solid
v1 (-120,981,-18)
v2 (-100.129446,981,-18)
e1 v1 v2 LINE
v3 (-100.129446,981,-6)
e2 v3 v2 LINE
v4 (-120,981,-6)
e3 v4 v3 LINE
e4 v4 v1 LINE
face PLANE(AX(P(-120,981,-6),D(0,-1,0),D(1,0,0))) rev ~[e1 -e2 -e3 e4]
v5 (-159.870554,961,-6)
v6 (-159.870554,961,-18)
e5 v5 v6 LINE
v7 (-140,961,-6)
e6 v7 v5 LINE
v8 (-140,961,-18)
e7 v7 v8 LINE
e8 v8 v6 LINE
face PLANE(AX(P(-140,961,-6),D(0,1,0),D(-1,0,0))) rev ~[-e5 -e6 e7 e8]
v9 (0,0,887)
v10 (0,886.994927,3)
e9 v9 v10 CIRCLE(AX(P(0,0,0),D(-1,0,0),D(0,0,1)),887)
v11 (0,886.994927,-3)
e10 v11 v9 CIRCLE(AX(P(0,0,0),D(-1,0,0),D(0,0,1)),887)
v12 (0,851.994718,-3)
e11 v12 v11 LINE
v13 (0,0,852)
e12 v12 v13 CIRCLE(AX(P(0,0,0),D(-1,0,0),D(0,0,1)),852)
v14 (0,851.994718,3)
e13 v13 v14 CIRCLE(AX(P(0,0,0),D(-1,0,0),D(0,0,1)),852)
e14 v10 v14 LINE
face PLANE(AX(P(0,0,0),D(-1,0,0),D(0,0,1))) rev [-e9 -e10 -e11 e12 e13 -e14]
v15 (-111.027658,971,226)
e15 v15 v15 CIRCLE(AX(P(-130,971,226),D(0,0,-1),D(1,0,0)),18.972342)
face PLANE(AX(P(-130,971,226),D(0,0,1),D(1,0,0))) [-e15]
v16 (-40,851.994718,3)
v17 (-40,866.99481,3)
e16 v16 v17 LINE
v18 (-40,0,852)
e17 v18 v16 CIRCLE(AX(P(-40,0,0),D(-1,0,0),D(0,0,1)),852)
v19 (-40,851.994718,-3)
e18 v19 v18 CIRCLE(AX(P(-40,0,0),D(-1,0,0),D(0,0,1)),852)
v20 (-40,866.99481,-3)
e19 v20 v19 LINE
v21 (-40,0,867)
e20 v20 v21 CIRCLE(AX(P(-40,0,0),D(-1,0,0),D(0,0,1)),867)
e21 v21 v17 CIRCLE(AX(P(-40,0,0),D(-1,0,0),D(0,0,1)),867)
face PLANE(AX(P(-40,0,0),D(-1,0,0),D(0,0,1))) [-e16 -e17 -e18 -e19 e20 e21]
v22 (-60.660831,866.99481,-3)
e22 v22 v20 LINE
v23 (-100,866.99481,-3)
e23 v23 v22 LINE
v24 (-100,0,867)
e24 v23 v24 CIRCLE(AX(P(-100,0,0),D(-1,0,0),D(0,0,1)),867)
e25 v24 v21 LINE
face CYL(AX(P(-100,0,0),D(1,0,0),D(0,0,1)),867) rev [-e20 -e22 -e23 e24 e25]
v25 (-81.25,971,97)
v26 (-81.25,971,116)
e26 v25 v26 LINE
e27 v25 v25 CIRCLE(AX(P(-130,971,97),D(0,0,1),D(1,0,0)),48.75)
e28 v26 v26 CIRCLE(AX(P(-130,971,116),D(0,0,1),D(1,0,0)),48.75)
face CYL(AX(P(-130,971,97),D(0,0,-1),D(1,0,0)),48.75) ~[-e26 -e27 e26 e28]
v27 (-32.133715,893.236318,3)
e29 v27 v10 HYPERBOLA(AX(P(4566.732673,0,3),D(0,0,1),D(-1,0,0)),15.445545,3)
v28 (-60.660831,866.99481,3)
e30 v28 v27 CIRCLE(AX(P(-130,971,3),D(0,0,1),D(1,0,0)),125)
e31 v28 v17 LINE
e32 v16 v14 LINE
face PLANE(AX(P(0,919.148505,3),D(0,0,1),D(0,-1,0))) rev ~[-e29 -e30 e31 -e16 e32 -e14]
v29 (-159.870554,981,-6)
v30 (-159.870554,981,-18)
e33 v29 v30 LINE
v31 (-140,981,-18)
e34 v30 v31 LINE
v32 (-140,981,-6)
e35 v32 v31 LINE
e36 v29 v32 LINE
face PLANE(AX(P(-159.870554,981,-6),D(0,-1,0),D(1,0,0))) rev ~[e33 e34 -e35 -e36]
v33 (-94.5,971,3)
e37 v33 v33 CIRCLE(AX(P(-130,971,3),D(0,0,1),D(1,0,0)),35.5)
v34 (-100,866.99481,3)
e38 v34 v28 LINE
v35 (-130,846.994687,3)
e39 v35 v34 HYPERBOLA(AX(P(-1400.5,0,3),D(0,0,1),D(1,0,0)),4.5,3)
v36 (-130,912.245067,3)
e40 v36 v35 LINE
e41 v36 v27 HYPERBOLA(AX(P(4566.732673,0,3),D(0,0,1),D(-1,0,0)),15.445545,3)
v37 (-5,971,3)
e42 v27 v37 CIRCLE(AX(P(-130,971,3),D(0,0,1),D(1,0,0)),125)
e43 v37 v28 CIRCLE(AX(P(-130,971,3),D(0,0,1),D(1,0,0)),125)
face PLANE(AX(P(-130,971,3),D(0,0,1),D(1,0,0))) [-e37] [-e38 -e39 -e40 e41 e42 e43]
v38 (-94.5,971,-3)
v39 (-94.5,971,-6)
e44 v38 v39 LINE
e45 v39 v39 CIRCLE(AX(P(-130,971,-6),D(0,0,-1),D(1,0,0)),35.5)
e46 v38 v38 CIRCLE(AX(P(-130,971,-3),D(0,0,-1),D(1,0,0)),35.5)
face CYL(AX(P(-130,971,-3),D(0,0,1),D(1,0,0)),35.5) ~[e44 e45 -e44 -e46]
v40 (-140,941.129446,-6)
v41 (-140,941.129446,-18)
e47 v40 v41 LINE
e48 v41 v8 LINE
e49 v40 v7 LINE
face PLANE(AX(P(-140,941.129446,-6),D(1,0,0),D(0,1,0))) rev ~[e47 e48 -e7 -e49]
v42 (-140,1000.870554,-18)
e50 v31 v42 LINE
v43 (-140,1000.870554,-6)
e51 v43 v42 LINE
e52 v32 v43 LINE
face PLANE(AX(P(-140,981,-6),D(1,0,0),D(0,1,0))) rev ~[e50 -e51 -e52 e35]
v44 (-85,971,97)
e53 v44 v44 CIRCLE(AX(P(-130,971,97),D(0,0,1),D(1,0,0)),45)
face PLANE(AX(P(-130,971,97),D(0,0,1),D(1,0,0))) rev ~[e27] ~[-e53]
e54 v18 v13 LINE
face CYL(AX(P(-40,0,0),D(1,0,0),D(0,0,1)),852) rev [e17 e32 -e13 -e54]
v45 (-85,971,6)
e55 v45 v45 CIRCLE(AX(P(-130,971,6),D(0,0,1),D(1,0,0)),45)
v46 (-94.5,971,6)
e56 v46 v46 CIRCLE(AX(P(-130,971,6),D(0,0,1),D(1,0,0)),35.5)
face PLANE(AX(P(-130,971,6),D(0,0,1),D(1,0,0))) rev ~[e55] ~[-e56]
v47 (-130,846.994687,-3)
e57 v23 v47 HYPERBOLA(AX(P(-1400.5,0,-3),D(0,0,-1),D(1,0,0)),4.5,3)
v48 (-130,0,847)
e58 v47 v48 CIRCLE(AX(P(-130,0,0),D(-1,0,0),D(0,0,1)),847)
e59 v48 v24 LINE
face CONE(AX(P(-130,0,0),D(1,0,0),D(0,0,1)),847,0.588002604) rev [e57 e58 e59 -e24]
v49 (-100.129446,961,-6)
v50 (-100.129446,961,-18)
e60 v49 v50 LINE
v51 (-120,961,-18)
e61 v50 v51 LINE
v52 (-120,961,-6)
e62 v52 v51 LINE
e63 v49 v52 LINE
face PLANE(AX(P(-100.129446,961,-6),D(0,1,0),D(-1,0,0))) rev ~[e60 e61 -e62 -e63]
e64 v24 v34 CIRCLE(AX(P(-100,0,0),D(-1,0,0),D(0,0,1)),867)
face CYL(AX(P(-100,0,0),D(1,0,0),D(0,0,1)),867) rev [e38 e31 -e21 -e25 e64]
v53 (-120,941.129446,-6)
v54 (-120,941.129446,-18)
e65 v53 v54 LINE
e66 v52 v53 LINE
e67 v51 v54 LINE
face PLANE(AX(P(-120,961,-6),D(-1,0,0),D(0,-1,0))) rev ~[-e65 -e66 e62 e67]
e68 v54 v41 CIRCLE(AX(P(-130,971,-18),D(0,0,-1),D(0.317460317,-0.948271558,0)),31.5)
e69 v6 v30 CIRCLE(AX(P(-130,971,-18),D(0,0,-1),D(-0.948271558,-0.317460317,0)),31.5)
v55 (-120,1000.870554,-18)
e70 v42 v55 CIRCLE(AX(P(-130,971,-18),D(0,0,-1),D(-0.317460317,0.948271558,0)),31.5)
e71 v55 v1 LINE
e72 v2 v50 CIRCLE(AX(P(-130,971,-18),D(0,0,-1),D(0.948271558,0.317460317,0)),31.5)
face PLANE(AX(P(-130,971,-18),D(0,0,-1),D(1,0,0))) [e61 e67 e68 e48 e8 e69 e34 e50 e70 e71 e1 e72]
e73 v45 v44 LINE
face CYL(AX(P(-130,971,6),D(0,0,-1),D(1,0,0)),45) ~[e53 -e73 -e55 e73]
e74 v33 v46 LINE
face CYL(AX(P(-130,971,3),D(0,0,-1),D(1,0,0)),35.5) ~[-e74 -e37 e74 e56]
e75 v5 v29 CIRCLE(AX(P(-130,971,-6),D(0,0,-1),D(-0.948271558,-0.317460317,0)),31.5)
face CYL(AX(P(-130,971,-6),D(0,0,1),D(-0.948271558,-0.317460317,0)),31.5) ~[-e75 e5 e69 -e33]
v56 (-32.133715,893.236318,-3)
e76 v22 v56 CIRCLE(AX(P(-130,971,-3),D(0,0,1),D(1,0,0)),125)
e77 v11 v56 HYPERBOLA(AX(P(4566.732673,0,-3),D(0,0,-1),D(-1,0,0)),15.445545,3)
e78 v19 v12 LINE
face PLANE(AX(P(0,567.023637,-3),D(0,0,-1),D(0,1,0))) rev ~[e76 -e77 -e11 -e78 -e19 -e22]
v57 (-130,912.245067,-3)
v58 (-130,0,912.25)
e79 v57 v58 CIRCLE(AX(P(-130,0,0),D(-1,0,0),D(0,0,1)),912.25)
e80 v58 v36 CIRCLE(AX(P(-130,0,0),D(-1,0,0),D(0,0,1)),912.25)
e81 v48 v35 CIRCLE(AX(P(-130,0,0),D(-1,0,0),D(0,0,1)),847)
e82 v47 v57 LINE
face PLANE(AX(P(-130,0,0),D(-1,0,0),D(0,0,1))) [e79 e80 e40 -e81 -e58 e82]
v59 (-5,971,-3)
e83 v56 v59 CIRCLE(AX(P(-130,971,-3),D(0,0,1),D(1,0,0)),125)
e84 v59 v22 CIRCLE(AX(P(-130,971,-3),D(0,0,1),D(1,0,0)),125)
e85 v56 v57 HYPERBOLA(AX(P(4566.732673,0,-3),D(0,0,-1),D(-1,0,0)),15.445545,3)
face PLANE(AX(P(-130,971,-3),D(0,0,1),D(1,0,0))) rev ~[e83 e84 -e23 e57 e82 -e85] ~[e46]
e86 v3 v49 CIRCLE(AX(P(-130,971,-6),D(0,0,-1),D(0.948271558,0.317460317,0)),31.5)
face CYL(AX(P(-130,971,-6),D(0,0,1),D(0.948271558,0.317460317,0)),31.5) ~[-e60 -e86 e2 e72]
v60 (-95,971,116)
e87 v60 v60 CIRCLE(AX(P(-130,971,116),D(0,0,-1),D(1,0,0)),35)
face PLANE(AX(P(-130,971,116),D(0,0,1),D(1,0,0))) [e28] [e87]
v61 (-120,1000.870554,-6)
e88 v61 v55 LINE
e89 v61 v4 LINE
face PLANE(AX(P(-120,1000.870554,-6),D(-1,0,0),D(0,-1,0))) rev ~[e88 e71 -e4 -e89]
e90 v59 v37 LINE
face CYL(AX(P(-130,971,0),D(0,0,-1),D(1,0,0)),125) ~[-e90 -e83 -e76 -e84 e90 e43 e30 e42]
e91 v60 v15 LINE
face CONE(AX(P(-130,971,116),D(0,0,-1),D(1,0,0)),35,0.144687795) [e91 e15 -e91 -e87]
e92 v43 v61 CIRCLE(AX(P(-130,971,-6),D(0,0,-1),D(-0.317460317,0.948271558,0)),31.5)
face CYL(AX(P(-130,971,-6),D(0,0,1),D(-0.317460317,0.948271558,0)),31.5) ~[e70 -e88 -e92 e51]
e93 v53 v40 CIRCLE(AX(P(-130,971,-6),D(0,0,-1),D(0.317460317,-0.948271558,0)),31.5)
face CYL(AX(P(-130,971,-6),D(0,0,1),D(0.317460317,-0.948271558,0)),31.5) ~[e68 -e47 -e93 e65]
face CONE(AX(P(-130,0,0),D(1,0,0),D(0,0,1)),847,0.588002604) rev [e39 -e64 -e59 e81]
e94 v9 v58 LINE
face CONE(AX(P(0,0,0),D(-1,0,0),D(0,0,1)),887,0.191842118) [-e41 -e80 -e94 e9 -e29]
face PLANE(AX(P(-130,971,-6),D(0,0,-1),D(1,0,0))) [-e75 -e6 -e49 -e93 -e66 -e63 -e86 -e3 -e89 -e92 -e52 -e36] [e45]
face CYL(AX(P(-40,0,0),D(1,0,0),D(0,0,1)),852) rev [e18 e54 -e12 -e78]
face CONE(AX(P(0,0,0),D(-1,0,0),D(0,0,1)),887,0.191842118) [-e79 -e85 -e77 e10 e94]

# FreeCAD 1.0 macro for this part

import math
import FreeCAD as App
import Part
import Sketcher

V = App.Vector
Q = App.Units.Quantity


def add_polygon(sketch, points):
    """Adds a closed chain of lines whose ends are joined by coincident constraints."""
    first, n = sketch.GeometryCount, len(points)
    for a, b in zip(points, points[1:] + points[:1]):
        sketch.addGeometry(Part.LineSegment(App.Vector(*a, 0), App.Vector(*b, 0)), False)
    for i in range(n):
        sketch.addConstraint(Sketcher.Constraint("Coincident", first + i, 2, first + (i + 1) % n, 1))

doc = App.newDocument("Part")
body = doc.addObject("PartDesign::Body", "Body")

# Sketch on XZ plane
sketch1 = body.newObject("Sketcher::SketchObject", "Sketch")
sketch1.AttachmentSupport = (doc.getObject("XZ_Plane"), [""])
sketch1.MapMode = "FlatFace"
add_polygon(sketch1, [(-40, 852), (0, 852), (0, 887), (-130, 912), (-130, 847), (-100, 867), (-40, 867)])  # lines 0-6
sketch1.addConstraint([
    Sketcher.Constraint("Horizontal", 0),
    Sketcher.Constraint("Vertical", 1),
    Sketcher.Constraint("Vertical", 3),
    Sketcher.Constraint("Horizontal", 5),
    Sketcher.Constraint("Vertical", 6),
    Sketcher.Constraint("PointOnObject", 0, 2, -2),
    Sketcher.Constraint("DistanceX", 0, 1, 0, 2, Q("40 mm")),
    Sketcher.Constraint("DistanceX", 5, 1, 5, 2, Q("60 mm")),
    Sketcher.Constraint("DistanceY", 1, 1, 1, 2, Q("35 mm")),
    Sketcher.Constraint("DistanceY", 6, 2, 6, 1, Q("15 mm")),
    Sketcher.Constraint("DistanceY", -1, 1, 0, 2, Q("852 mm")),
    Sketcher.Constraint("DistanceX", 2, 2, -1, 1, Q("130 mm")),
    Sketcher.Constraint("DistanceY", -1, 1, 3, 2, Q("847 mm")),
    Sketcher.Constraint("DistanceY", 3, 2, 3, 1, Q("65.25 mm")),
])
revolution = body.newObject("PartDesign::Revolution", "Revolution")
revolution.Profile = sketch1
revolution.ReferenceAxis = (sketch1, ["H_Axis"])
revolution.Angle = 360

# Sketch on YZ plane
sketch2 = body.newObject("Sketcher::SketchObject", "Sketch001")
sketch2.AttachmentSupport = (doc.getObject("YZ_Plane"), [""])
sketch2.MapMode = "FlatFace"
add_polygon(sketch2, [(919, -3), (919, 3), (567, 3), (567, -3)])  # lines 0-3
sketch2.addConstraint([
    Sketcher.Constraint("Vertical", 0),
    Sketcher.Constraint("Horizontal", 1),
    Sketcher.Constraint("Vertical", 2),
    Sketcher.Constraint("Horizontal", 3),
    Sketcher.Constraint("DistanceY", 0, 1, 0, 2, Q("6 mm")),
    Sketcher.Constraint("DistanceY", -1, 1, 0, 2, Q("3 mm")),
    Sketcher.Constraint("DistanceX", 1, 2, 1, 1, Q("352.124868 mm")),
    Sketcher.Constraint("DistanceX", -1, 1, 0, 2, Q("919.148505 mm")),
])
pocket1 = body.newObject("PartDesign::Pocket", "Pocket")
pocket1.Profile = sketch2
pocket1.Length = 130

# Sketch on XY plane
sketch3 = body.newObject("Sketcher::SketchObject", "Sketch002")
sketch3.AttachmentSupport = (doc.getObject("XY_Plane"), [""])
sketch3.MapMode = "FlatFace"
sketch3.addGeometry(Part.Circle(V(-130, 971, 0), V(0, 0, 1), 125), False)
sketch3.addConstraint([
    Sketcher.Constraint("Diameter", 0, Q("250 mm")),
    Sketcher.Constraint("DistanceX", 0, 3, -1, 1, Q("130 mm")),
    Sketcher.Constraint("DistanceY", -1, 1, 0, 3, Q("971 mm")),
])
pad1 = body.newObject("PartDesign::Pad", "Pad")
pad1.Profile = sketch3
pad1.Type = "TwoLengths"
pad1.Length = 3
pad1.Length2 = 3
pad1.Reversed = True

# Sketch on XY plane
sketch4 = body.newObject("Sketcher::SketchObject", "Sketch003")
sketch4.AttachmentSupport = (doc.getObject("XY_Plane"), [""])
sketch4.MapMode = "FlatFace"
sketch4.AttachmentOffset = App.Placement(V(0, 0, 3), App.Rotation())
sketch4.addGeometry(Part.Circle(V(-130, 971, 0), V(0, 0, 1), 36), False)
sketch4.addConstraint([
    Sketcher.Constraint("Diameter", 0, Q("71 mm")),
    Sketcher.Constraint("DistanceX", 0, 3, -1, 1, Q("130 mm")),
    Sketcher.Constraint("DistanceY", -1, 1, 0, 3, Q("971 mm")),
])
pad2 = body.newObject("PartDesign::Pad", "Pad001")
pad2.Profile = sketch4
pad2.Length = 3

# Sketch on XY plane
sketch5 = body.newObject("Sketcher::SketchObject", "Sketch004")
sketch5.AttachmentSupport = (doc.getObject("XY_Plane"), [""])
sketch5.MapMode = "FlatFace"
sketch5.AttachmentOffset = App.Placement(V(0, 0, -3), App.Rotation())
sketch5.addGeometry(Part.Circle(V(-130, 971, 0), V(0, 0, 1), 36), False)
sketch5.addConstraint([
    Sketcher.Constraint("Diameter", 0, Q("71 mm")),
    Sketcher.Constraint("DistanceX", 0, 3, -1, 1, Q("130 mm")),
    Sketcher.Constraint("DistanceY", -1, 1, 0, 3, Q("971 mm")),
])
pad3 = body.newObject("PartDesign::Pad", "Pad002")
pad3.Profile = sketch5
pad3.Length = 3
pad3.Reversed = True

# Sketch on XY plane
sketch6 = body.newObject("Sketcher::SketchObject", "Sketch005")
sketch6.AttachmentSupport = (doc.getObject("XY_Plane"), [""])
sketch6.MapMode = "FlatFace"
sketch6.AttachmentOffset = App.Placement(V(0, 0, 6), App.Rotation())
sketch6.addGeometry(Part.Circle(V(-130, 971, 0), V(0, 0, 1), 45), False)
sketch6.addConstraint([
    Sketcher.Constraint("Diameter", 0, Q("90 mm")),
    Sketcher.Constraint("DistanceX", 0, 3, -1, 1, Q("130 mm")),
    Sketcher.Constraint("DistanceY", -1, 1, 0, 3, Q("971 mm")),
])
pad4 = body.newObject("PartDesign::Pad", "Pad003")
pad4.Profile = sketch6
pad4.Length = 91

# Sketch on XY plane
sketch7 = body.newObject("Sketcher::SketchObject", "Sketch006")
sketch7.AttachmentSupport = (doc.getObject("XY_Plane"), [""])
sketch7.MapMode = "FlatFace"
sketch7.AttachmentOffset = App.Placement(V(0, 0, 97), App.Rotation())
sketch7.addGeometry(Part.Circle(V(-130, 971, 0), V(0, 0, 1), 49), False)
sketch7.addConstraint([
    Sketcher.Constraint("Diameter", 0, Q("97.5 mm")),
    Sketcher.Constraint("DistanceX", 0, 3, -1, 1, Q("130 mm")),
    Sketcher.Constraint("DistanceY", -1, 1, 0, 3, Q("971 mm")),
])
pad5 = body.newObject("PartDesign::Pad", "Pad004")
pad5.Profile = sketch7
pad5.Length = 19

# Sketch on XY plane
sketch8 = body.newObject("Sketcher::SketchObject", "Sketch007")
sketch8.AttachmentSupport = (doc.getObject("XY_Plane"), [""])
sketch8.MapMode = "FlatFace"
sketch8.AttachmentOffset = App.Placement(V(0, 0, 116), App.Rotation())
sketch8.addGeometry(Part.Circle(V(-130, 971, 0), V(0, 0, 1), 35), False)
sketch8.addConstraint([
    Sketcher.Constraint("Diameter", 0, Q("70 mm")),
    Sketcher.Constraint("DistanceX", 0, 3, -1, 1, Q("130 mm")),
    Sketcher.Constraint("DistanceY", -1, 1, 0, 3, Q("971 mm")),
])
pad6 = body.newObject("PartDesign::Pad", "Pad005")
pad6.Profile = sketch8
pad6.Length = 110
pad6.TaperAngle = -8.29

# Sketch on XY plane
sketch9 = body.newObject("Sketcher::SketchObject", "Sketch008")
sketch9.AttachmentSupport = (doc.getObject("XY_Plane"), [""])
sketch9.MapMode = "FlatFace"
sketch9.AttachmentOffset = App.Placement(V(0, 0, -6), App.Rotation())
sketch9.addGeometry([
    Part.LineSegment(V(-120, 961, 0), V(-120, 941, 0)),  # 0
    Part.ArcOfCircle(Part.Circle(V(-130, 971, 0), V(0, 0, 1), 32), math.radians(-109), math.radians(-71)),  # 1
    Part.LineSegment(V(-140, 941, 0), V(-140, 961, 0)),  # 2
    Part.LineSegment(V(-140, 961, 0), V(-160, 961, 0)),  # 3
    Part.ArcOfCircle(Part.Circle(V(-130, 971, 0), V(0, 0, 1), 32), math.radians(161), math.radians(199)),  # 4
    Part.LineSegment(V(-160, 981, 0), V(-140, 981, 0)),  # 5
    Part.LineSegment(V(-140, 981, 0), V(-140, 1001, 0)),  # 6
    Part.ArcOfCircle(Part.Circle(V(-130, 971, 0), V(0, 0, 1), 32), math.radians(71), math.radians(109)),  # 7
    Part.LineSegment(V(-120, 1001, 0), V(-120, 981, 0)),  # 8
    Part.LineSegment(V(-120, 981, 0), V(-100, 981, 0)),  # 9
    Part.ArcOfCircle(Part.Circle(V(-130, 971, 0), V(0, 0, 1), 32), math.radians(-19), math.radians(19)),  # 10
    Part.LineSegment(V(-100, 961, 0), V(-120, 961, 0)),  # 11
], False)
sketch9.addConstraint([
    Sketcher.Constraint("Coincident", 0, 2, 1, 2),
    Sketcher.Constraint("Coincident", 1, 1, 2, 1),
    Sketcher.Constraint("Coincident", 2, 2, 3, 1),
    Sketcher.Constraint("Coincident", 3, 2, 4, 2),
    Sketcher.Constraint("Coincident", 4, 1, 5, 1),
    Sketcher.Constraint("Coincident", 5, 2, 6, 1),
    Sketcher.Constraint("Coincident", 6, 2, 7, 2),
    Sketcher.Constraint("Coincident", 7, 1, 8, 1),
    Sketcher.Constraint("Coincident", 8, 2, 9, 1),
    Sketcher.Constraint("Coincident", 9, 2, 10, 2),
    Sketcher.Constraint("Coincident", 10, 1, 11, 1),
    Sketcher.Constraint("Coincident", 11, 2, 0, 1),
    Sketcher.Constraint("Vertical", 0),
    Sketcher.Constraint("Vertical", 2),
    Sketcher.Constraint("Horizontal", 3),
    Sketcher.Constraint("Horizontal", 5),
    Sketcher.Constraint("Vertical", 6),
    Sketcher.Constraint("Vertical", 8),
    Sketcher.Constraint("Horizontal", 9),
    Sketcher.Constraint("Horizontal", 11),
    Sketcher.Constraint("Coincident", 4, 3, 1, 3),
    Sketcher.Constraint("Coincident", 7, 3, 1, 3),
    Sketcher.Constraint("Coincident", 10, 3, 1, 3),
    Sketcher.Constraint("Equal", 1, 4),
    Sketcher.Constraint("Equal", 4, 7),
    Sketcher.Constraint("Equal", 7, 10),
    Sketcher.Constraint("Horizontal", 0, 2, 1, 1),
    Sketcher.Constraint("Horizontal", 6, 2, 7, 1),
    Sketcher.Constraint("Horizontal", 5, 2, 8, 2),
    Sketcher.Constraint("Horizontal", 3, 2, 10, 1),
    Sketcher.Constraint("Vertical", 3, 2, 4, 1),
    Sketcher.Constraint("Vertical", 2, 2, 5, 2),
    Sketcher.Constraint("Equal", 11, 0),
    Sketcher.Constraint("Radius", 1, Q("31.5 mm")),
    Sketcher.Constraint("DistanceX", 1, 3, -1, 1, Q("130 mm")),
    Sketcher.Constraint("DistanceY", -1, 1, 1, 3, Q("971 mm")),
    Sketcher.Constraint("DistanceX", 0, 2, -1, 1, Q("120 mm")),
])
pad7 = body.newObject("PartDesign::Pad", "Pad006")
pad7.Profile = sketch9
pad7.Length = 12
pad7.Reversed = True

doc.recompute()
